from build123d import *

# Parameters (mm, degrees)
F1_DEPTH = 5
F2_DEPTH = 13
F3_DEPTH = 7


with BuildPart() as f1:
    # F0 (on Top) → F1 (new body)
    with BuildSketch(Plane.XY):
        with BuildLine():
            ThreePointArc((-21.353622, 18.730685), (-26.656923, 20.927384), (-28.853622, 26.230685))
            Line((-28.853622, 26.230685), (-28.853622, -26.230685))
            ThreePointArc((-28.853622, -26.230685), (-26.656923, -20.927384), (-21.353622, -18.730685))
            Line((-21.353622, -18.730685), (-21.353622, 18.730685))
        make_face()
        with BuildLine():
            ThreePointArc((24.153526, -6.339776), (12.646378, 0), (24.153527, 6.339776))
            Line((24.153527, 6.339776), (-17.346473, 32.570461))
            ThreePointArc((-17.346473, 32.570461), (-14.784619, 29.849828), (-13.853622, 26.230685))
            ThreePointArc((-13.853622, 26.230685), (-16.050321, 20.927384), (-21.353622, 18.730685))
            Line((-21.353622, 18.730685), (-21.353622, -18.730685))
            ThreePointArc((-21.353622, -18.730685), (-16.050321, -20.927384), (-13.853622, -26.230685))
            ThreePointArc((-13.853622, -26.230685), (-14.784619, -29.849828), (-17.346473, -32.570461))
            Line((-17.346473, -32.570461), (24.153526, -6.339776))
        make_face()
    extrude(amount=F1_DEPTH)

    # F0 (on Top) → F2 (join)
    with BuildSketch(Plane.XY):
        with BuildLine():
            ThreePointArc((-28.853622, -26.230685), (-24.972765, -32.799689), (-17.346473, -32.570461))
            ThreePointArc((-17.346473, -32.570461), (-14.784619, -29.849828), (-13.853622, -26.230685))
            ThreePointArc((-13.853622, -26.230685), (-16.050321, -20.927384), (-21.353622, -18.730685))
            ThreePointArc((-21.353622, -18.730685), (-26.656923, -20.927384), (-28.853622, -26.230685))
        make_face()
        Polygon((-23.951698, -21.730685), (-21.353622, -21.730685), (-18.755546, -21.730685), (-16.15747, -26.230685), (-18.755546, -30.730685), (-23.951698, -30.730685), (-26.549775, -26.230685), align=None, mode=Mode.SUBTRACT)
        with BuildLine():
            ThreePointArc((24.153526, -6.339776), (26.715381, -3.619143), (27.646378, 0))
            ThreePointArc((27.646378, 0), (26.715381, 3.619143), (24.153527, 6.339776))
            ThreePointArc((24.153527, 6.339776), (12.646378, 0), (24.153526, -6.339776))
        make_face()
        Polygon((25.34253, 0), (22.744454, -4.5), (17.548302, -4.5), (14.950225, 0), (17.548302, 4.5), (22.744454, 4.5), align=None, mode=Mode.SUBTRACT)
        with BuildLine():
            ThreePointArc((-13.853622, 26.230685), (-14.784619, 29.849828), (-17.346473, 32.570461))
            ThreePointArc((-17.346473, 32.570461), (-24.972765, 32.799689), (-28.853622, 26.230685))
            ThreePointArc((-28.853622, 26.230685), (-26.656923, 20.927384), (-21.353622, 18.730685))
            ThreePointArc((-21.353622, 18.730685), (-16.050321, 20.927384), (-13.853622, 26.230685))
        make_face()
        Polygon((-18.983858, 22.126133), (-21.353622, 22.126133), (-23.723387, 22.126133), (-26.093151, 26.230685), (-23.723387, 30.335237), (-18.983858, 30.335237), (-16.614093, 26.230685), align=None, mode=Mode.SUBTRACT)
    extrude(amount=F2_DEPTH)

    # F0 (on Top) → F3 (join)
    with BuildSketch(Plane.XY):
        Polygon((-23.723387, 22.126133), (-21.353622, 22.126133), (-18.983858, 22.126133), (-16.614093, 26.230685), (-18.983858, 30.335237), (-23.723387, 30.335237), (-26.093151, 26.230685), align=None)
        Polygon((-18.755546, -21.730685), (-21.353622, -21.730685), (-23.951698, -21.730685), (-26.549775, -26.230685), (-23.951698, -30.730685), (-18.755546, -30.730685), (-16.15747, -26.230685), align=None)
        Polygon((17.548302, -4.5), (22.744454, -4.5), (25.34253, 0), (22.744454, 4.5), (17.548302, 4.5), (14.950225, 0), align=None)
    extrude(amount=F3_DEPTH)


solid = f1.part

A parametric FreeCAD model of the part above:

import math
import FreeCAD as App
import Part
import Sketcher
from FreeCAD import Vector
Q = App.Units.Quantity


def add_polygon(sketch, points):
    """Adds a closed chain of lines whose ends are joined by coincident constraints."""
    first, n = sketch.GeometryCount, len(points)
    for a, b in zip(points, points[1:] + points[:1]):
        sketch.addGeometry(Part.LineSegment(App.Vector(*a, 0), App.Vector(*b, 0)), False)
    for i in range(n):
        sketch.addConstraint(Sketcher.Constraint("Coincident", first + i, 2, first + (i + 1) % n, 1))

doc = App.newDocument("Part")
params = doc.addObject("Spreadsheet::Sheet", "Params")
for row, (alias, value) in enumerate([
    ("sketch1_radius", "7.5 mm"),
    ("pad1_length", "5 mm"),
    ("sketch2_radius", "7.5 mm"),
    ("pad2_length", "13 mm"),
    ("pad3_length", "7 mm"),
], start=1):
    params.set(f"A{row}", alias)
    params.set(f"B{row}", "=" + value)
    params.setAlias(f"B{row}", alias)

body = doc.addObject("PartDesign::Body", "Body")

sketch1 = body.newObject("Sketcher::SketchObject", "Sketch")
sketch1.AttachmentSupport = (doc.getObject("XY_Plane"), [""])
sketch1.MapMode = "FlatFace"
sketch1.addGeometry([
    Part.ArcOfCircle(Part.Circle(Vector(-21, 26, 0), Vector(0, 0, 1), 7), math.radians(180), math.radians(270)),
    Part.LineSegment(Vector(-29, 26, 0), Vector(-29, -26, 0)),
    Part.ArcOfCircle(Part.Circle(Vector(-21, -26, 0), Vector(0, 0, 1), 7), math.radians(90), math.radians(180)),
    Part.ArcOfCircle(Part.Circle(Vector(-21, -26, 0), Vector(0, 0, 1), 7), math.radians(0), math.radians(90)),
    Part.ArcOfCircle(Part.Circle(Vector(-21, -26, 0), Vector(0, 0, 1), 8), math.radians(-58), math.radians(0)),
    Part.LineSegment(Vector(-17, -33, 0), Vector(24, -6, 0)),
    Part.ArcOfCircle(Part.Circle(Vector(20, 0, 0), Vector(0, 0, 1), 7), math.radians(58), math.radians(302)),
    Part.LineSegment(Vector(24, 6, 0), Vector(-17, 33, 0)),
    Part.ArcOfCircle(Part.Circle(Vector(-21, 26, 0), Vector(0, 0, 1), 8), math.radians(0), math.radians(58)),
    Part.ArcOfCircle(Part.Circle(Vector(-21, 26, 0), Vector(0, 0, 1), 7), math.radians(-90), math.radians(0)),
], False)
sketch1.addConstraint([
    Sketcher.Constraint("Tangent", 0, 1, 1, 1),
    Sketcher.Constraint("Tangent", 1, 2, 2, 2),
    Sketcher.Constraint("Tangent", 2, 1, 3, 2),
    Sketcher.Constraint("Tangent", 3, 1, 4, 2),
    Sketcher.Constraint("Tangent", 4, 1, 5, 1),
    Sketcher.Constraint("Tangent", 5, 2, 6, 2),
    Sketcher.Constraint("Tangent", 6, 1, 7, 1),
    Sketcher.Constraint("Tangent", 7, 2, 8, 2),
    Sketcher.Constraint("Tangent", 8, 1, 9, 2),
    Sketcher.Constraint("Tangent", 9, 1, 0, 2),
    Sketcher.Constraint("Vertical", 1),
    Sketcher.Constraint("Coincident", 4, 3, 2, 3),
    Sketcher.Constraint("Coincident", 8, 3, 0, 3),
    Sketcher.Constraint("Equal", 0, 2),
    Sketcher.Constraint("Equal", 3, 6),
    Sketcher.Constraint("Symmetric", 5, 2, 6, 1, -1),
    Sketcher.Constraint("Horizontal", 1, 2, 3, 1),
    Sketcher.Constraint("Horizontal", 0, 1, 8, 1),
    Sketcher.Constraint("Vertical", 9, 3, 2, 1),
    Sketcher.Constraint("Vertical", 2, 1, 9, 1),
    Sketcher.Constraint("Radius", 0, Q("7.5 mm")),
    Sketcher.Constraint("DistanceX", 3, 3, 6, 3, Q("41.499999 mm")),
    Sketcher.Constraint("DistanceY", 1, 2, 1, 1, Q("52.46137 mm")),
    Sketcher.Constraint("DistanceX", 3, 3, -1, 1, Q("21.353622 mm")),
])
sketch1.setExpression("Constraints[20]", "Params.sketch1_radius")
pad1 = body.newObject("PartDesign::Pad", "Pad")
pad1.Profile = sketch1
pad1.setExpression("Length", "Params.pad1_length")

sketch2 = body.newObject("Sketcher::SketchObject", "Sketch001")
sketch2.AttachmentSupport = (doc.getObject("XY_Plane"), [""])
sketch2.MapMode = "FlatFace"
sketch2.addGeometry(Part.ArcOfCircle(Part.Circle(Vector(-21.4, -26.2, 0), Vector(0, 0, 1), 7.5), math.radians(180), math.radians(302)), False)
sketch2.addGeometry(Part.ArcOfCircle(Part.Circle(Vector(-21.4, -26.2, 0), Vector(0, 0, 1), 7.5), math.radians(-58), math.radians(0)), False)
sketch2.addGeometry(Part.ArcOfCircle(Part.Circle(Vector(-21.4, -26.2, 0), Vector(0, 0, 1), 7.5), math.radians(0), math.radians(90)), False)
sketch2.addGeometry(Part.ArcOfCircle(Part.Circle(Vector(-21.4, -26.2, 0), Vector(0, 0, 1), 7.5), math.radians(90), math.radians(180)), False)
add_polygon(sketch2, [(-26.5, -26.2), (-24, -21.7), (-18.8, -21.7), (-16.2, -26.2), (-18.8, -30.7), (-24, -30.7)])
sketch2.addGeometry(Part.ArcOfCircle(Part.Circle(Vector(20.1, 0, 0), Vector(0, 0, 1), 7.5), math.radians(-58), math.radians(0)), False)
sketch2.addGeometry(Part.ArcOfCircle(Part.Circle(Vector(20.1, 0, 0), Vector(0, 0, 1), 7.5), math.radians(0), math.radians(58)), False)
sketch2.addGeometry(Part.ArcOfCircle(Part.Circle(Vector(20.1, 0, 0), Vector(0, 0, 1), 7.5), math.radians(58), math.radians(302)), False)
add_polygon(sketch2, [(22.7, 4.5), (25.3, 0), (22.7, -4.5), (17.5, -4.5), (15, 0), (17.5, 4.5)])
sketch2.addGeometry(Part.ArcOfCircle(Part.Circle(Vector(-21.4, 26.2, 0), Vector(0, 0, 1), 7.5), math.radians(0), math.radians(58)), False)
sketch2.addGeometry(Part.ArcOfCircle(Part.Circle(Vector(-21.4, 26.2, 0), Vector(0, 0, 1), 7.5), math.radians(58), math.radians(180)), False)
sketch2.addGeometry(Part.ArcOfCircle(Part.Circle(Vector(-21.4, 26.2, 0), Vector(0, 0, 1), 7.5), math.radians(180), math.radians(270)), False)
sketch2.addGeometry(Part.ArcOfCircle(Part.Circle(Vector(-21.4, 26.2, 0), Vector(0, 0, 1), 7.5), math.radians(-90), math.radians(0)), False)
add_polygon(sketch2, [(-16.6, 26.2), (-19, 22.1), (-23.7, 22.1), (-26.1, 26.2), (-23.7, 30.3), (-19, 30.3)])
sketch2.addConstraint([
    Sketcher.Constraint("Tangent", 0, 2, 1, 1),
    Sketcher.Constraint("Tangent", 1, 2, 2, 1),
    Sketcher.Constraint("Tangent", 2, 2, 3, 1),
    Sketcher.Constraint("Tangent", 3, 2, 0, 1),
    Sketcher.Constraint("Tangent", 10, 2, 11, 1),
    Sketcher.Constraint("Tangent", 11, 2, 12, 1),
    Sketcher.Constraint("Tangent", 12, 2, 10, 1),
    Sketcher.Constraint("Tangent", 19, 2, 20, 1),
    Sketcher.Constraint("Tangent", 20, 2, 21, 1),
    Sketcher.Constraint("Tangent", 21, 2, 22, 1),
    Sketcher.Constraint("Tangent", 22, 2, 19, 1),
    Sketcher.Constraint("Horizontal", 5),
    Sketcher.Constraint("Horizontal", 8),
    Sketcher.Constraint("Horizontal", 15),
    Sketcher.Constraint("Horizontal", 18),
    Sketcher.Constraint("Horizontal", 24),
    Sketcher.Constraint("Horizontal", 27),
    Sketcher.Constraint("Equal", 0, 2),
    Sketcher.Constraint("Equal", 3, 10),
    Sketcher.Constraint("Equal", 11, 19),
    Sketcher.Constraint("Equal", 12, 20),
    Sketcher.Constraint("Symmetric", 0, 3, 19, 3, -1),
    Sketcher.Constraint("Symmetric", 11, 2, 12, 2, -1),
    Sketcher.Constraint("Symmetric", 15, 2, 17, 2, -1),
    Sketcher.Constraint("PointOnObject", 10, 2, -1),
    Sketcher.Constraint("PointOnObject", 13, 2, -1),
    Sketcher.Constraint("PointOnObject", 16, 2, -1),
    Sketcher.Constraint("Parallel", 4, 7),
    Sketcher.Constraint("Parallel", 6, 9),
    Sketcher.Constraint("Parallel", 9, 13),
    Sketcher.Constraint("Parallel", 7, 14),
    Sketcher.Constraint("Parallel", 13, 16),
    Sketcher.Constraint("Parallel", 14, 17),
    Sketcher.Constraint("Parallel", 17, 23),
    Sketcher.Constraint("Parallel", 16, 25),
    Sketcher.Constraint("Parallel", 23, 26),
    Sketcher.Constraint("Parallel", 25, 28),
    Sketcher.Constraint("Horizontal", 3, 3, 1, 2),
    Sketcher.Constraint("Horizontal", 1, 2, 3, 2),
    Sketcher.Constraint("Horizontal", 3, 2, 6, 2),
    Sketcher.Constraint("Horizontal", 6, 2, 9, 2),
    Sketcher.Constraint("Horizontal", 22, 3, 20, 2),
    Sketcher.Constraint("Horizontal", 20, 2, 22, 2),
    Sketcher.Constraint("Horizontal", 22, 2, 25, 2),
    Sketcher.Constraint("Horizontal", 25, 2, 28, 2),
    Sketcher.Constraint("Vertical", 22, 3, 2, 2),
    Sketcher.Constraint("Vertical", 5, 2, 7, 2),
    Sketcher.Constraint("Vertical", 0, 2, 19, 2),
    Sketcher.Constraint("Vertical", 2, 2, 21, 2),
    Sketcher.Constraint("Vertical", 24, 2, 26, 2),
    Sketcher.Constraint("Equal", 8, 15),
    Sketcher.Constraint("Equal", 9, 13),
    Sketcher.Constraint("Radius", 0, Q("7.5 mm")),
    Sketcher.Constraint("Angle", 4, Q("59.999992 deg")),
    Sketcher.Constraint("DistanceY", 4, 2, 2, 2, Q("3 mm")),
    Sketcher.Constraint("DistanceX", 2, 3, 10, 3, Q("41.499999 mm")),
    Sketcher.Constraint("DistanceX", 24, 2, 24, 1, Q("4.739529 mm")),
    Sketcher.Constraint("DistanceX", 4, 2, -1, 1, Q("23.951698 mm")),
    Sketcher.Constraint("DistanceX", -1, 1, 15, 2, Q("17.548302 mm")),
    Sketcher.Constraint("Distance", 23, Q("4.739529 mm")),
    Sketcher.Constraint("DistanceX", 5, 1, 5, 2, Q("5.196152 mm")),
    Sketcher.Constraint("DistanceX", 2, 3, -1, 1, Q("21.353622 mm")),
    Sketcher.Constraint("DistanceY", 0, 2, -1, 1, Q("32.570461 mm")),
    Sketcher.Constraint("DistanceX", 23, 2, -1, 1, Q("18.983858 mm")),
    Sketcher.Constraint("DistanceY", 3, 3, 19, 3, Q("52.461368 mm")),
    Sketcher.Constraint("DistanceX", 11, 2, 10, 2, Q("3.492851 mm")),
])
sketch2.setExpression("Constraints[70]", "Params.sketch2_radius")
pad2 = body.newObject("PartDesign::Pad", "Pad001")
pad2.Profile = sketch2
pad2.setExpression("Length", "Params.pad2_length")

sketch3 = body.newObject("Sketcher::SketchObject", "Sketch002")
sketch3.AttachmentSupport = (doc.getObject("XY_Plane"), [""])
sketch3.MapMode = "FlatFace"
add_polygon(sketch3, [(-23.7, 22.1), (-19, 22.1), (-16.6, 26.2), (-19, 30.3), (-23.7, 30.3), (-26.1, 26.2)])
add_polygon(sketch3, [(-18.8, -21.7), (-24, -21.7), (-26.5, -26.2), (-24, -30.7), (-18.8, -30.7), (-16.2, -26.2)])
add_polygon(sketch3, [(17.5, -4.5), (22.7, -4.5), (25.3, 0), (22.7, 4.5), (17.5, 4.5), (15, 0)])
sketch3.addConstraint([
    Sketcher.Constraint("Horizontal", 0),
    Sketcher.Constraint("Horizontal", 3),
    Sketcher.Constraint("Horizontal", 6),
    Sketcher.Constraint("Horizontal", 9),
    Sketcher.Constraint("Horizontal", 12),
    Sketcher.Constraint("Horizontal", 15),
    Sketcher.Constraint("Symmetric", 12, 2, 14, 2, -1),
    Sketcher.Constraint("PointOnObject", 13, 2, -1),
    Sketcher.Constraint("PointOnObject", 16, 2, -1),
    Sketcher.Constraint("Parallel", 1, 4),
    Sketcher.Constraint("Parallel", 2, 5),
    Sketcher.Constraint("Parallel", 4, 7),
    Sketcher.Constraint("Parallel", 5, 8),
    Sketcher.Constraint("Parallel", 7, 10),
    Sketcher.Constraint("Parallel", 8, 11),
    Sketcher.Constraint("Parallel", 10, 13),
    Sketcher.Constraint("Parallel", 11, 14),
    Sketcher.Constraint("Parallel", 13, 16),
    Sketcher.Constraint("Parallel", 14, 17),
    Sketcher.Constraint("Horizontal", 1, 2, 4, 2),
    Sketcher.Constraint("Horizontal", 7, 2, 10, 2),
    Sketcher.Constraint("Vertical", 0, 2, 2, 2),
    Sketcher.Constraint("Vertical", 6, 2, 8, 2),
    Sketcher.Constraint("Equal", 9, 12),
    Sketcher.Constraint("Equal", 11, 13),
    Sketcher.Constraint("Angle", 1, Q("59.999992 deg")),
    Sketcher.Constraint("DistanceY", 8, 2, 6, 2, Q("9 mm")),
    Sketcher.Constraint("DistanceX", 11, 2, 12, 2, Q("41.5 mm")),
    Sketcher.Constraint("DistanceX", 0, 1, 0, 2, Q("4.739529 mm")),
    Sketcher.Constraint("DistanceX", 6, 2, -1, 1, Q("23.951698 mm")),
    Sketcher.Constraint("Distance", 1, Q("4.739529 mm")),
    Sketcher.Constraint("DistanceX", 6, 2, 6, 1, Q("5.196152 mm")),
    Sketcher.Constraint("DistanceX", 0, 2, -1, 1, Q("18.983858 mm")),
    Sketcher.Constraint("DistanceY", 6, 2, 5, 2, Q("43.856818 mm")),
    Sketcher.Constraint("DistanceY", -1, 1, 0, 2, Q("22.126133 mm")),
])
pad3 = body.newObject("PartDesign::Pad", "Pad002")
pad3.Profile = sketch3
pad3.setExpression("Length", "Params.pad3_length")

doc.recompute()
